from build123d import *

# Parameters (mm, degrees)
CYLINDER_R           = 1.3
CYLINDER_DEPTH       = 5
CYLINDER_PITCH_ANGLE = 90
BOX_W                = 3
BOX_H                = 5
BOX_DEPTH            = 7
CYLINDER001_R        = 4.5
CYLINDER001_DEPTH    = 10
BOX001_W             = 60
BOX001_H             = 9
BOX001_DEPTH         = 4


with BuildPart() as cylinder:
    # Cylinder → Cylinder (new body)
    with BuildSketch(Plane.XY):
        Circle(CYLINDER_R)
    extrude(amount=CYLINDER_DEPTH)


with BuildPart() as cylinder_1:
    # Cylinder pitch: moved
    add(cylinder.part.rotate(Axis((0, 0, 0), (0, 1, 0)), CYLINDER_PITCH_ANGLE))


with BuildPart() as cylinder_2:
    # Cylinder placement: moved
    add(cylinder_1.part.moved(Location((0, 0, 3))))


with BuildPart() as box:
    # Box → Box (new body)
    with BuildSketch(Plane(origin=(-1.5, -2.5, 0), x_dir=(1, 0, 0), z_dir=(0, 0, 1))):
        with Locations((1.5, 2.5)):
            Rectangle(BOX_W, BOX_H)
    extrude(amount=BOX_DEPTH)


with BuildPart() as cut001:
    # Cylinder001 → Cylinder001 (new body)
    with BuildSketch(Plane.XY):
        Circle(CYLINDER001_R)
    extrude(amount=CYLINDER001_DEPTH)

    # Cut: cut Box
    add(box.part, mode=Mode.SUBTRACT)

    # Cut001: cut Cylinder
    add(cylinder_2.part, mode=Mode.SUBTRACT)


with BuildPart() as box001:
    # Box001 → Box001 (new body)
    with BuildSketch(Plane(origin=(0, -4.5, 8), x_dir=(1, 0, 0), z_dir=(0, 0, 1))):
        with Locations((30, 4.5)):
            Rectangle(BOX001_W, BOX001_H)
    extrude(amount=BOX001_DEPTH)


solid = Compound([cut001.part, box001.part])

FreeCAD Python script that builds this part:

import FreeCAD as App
import Part
import Sketcher


def add_polygon(sketch, points):
    """Adds a closed chain of lines whose ends are joined by coincident constraints."""
    first, n = sketch.GeometryCount, len(points)
    for a, b in zip(points, points[1:] + points[:1]):
        sketch.addGeometry(Part.LineSegment(App.Vector(*a, 0), App.Vector(*b, 0)), False)
    for i in range(n):
        sketch.addConstraint(Sketcher.Constraint("Coincident", first + i, 2, first + (i + 1) % n, 1))

doc = App.newDocument("Part")
params = doc.addObject("Spreadsheet::Sheet", "Params")
for row, (alias, value) in enumerate([
    ("sketch1_diameter", "2.6 mm"),
    ("pad1_length", "5 mm"),
    ("sketch2_width", "3 mm"),
    ("sketch2_height", "5 mm"),
    ("pad2_length", "7 mm"),
    ("sketch3_diameter", "9 mm"),
    ("pad3_length", "10 mm"),
    ("sketch4_width", "60 mm"),
    ("sketch4_height", "9 mm"),
    ("pad4_length", "4 mm"),
], start=1):
    params.set(f"A{row}", alias)
    params.set(f"B{row}", "=" + value)
    params.setAlias(f"B{row}", alias)

body = doc.addObject("PartDesign::Body", "Body")

sketch1 = doc.addObject("Sketcher::SketchObject", "Sketch")
body.addObject(sketch1)
sketch1.AttachmentSupport = (doc.XY_Plane, [""])
sketch1.MapMode = "FlatFace"
sketch1.addGeometry(Part.Circle(App.Vector(0, 0, 0), App.Vector(0, 0, 1), 1.3), False)
sketch1.addConstraint([
    Sketcher.Constraint("Coincident", 0, 3, -1, 1),
    Sketcher.Constraint("Diameter", 0, 2.6),
])
sketch1.setExpression("Constraints[1]", "Params.sketch1_diameter")
pad1 = doc.addObject("PartDesign::Pad", "Pad")
body.addObject(pad1)
pad1.Profile = sketch1
pad1.setExpression("Length", "Params.pad1_length")
body2 = doc.addObject("PartDesign::Body", "Body001")
doc.recompute()

body.Placement = App.Placement(App.Vector(0, 0, 0), App.Rotation(App.Vector(0, 1, 0), 90))
boolean = doc.addObject("PartDesign::Boolean", "Boolean")
body2.addObject(boolean)
boolean.Type = "Fuse"
boolean.addObjects([body])
body3 = doc.addObject("PartDesign::Body", "Body002")
doc.recompute()

body2.Placement = App.Placement(App.Vector(0, 0, 3), App.Rotation(App.Vector(0, 0, 1), 0))
boolean2 = doc.addObject("PartDesign::Boolean", "Boolean001")
body3.addObject(boolean2)
boolean2.Type = "Fuse"
boolean2.addObjects([body2])
body4 = doc.addObject("PartDesign::Body", "Body003")

sketch2 = doc.addObject("Sketcher::SketchObject", "Sketch001")
body4.addObject(sketch2)
sketch2.AttachmentSupport = (doc.getObject("XY_Plane003"), [""])
sketch2.MapMode = "FlatFace"
add_polygon(sketch2, [(-1.5, 2.5), (-1.5, -2.5), (1.5, -2.5), (1.5, 2.5)])
sketch2.addConstraint([
    Sketcher.Constraint("Vertical", 0),
    Sketcher.Constraint("Horizontal", 1),
    Sketcher.Constraint("Vertical", 2),
    Sketcher.Constraint("Horizontal", 3),
    Sketcher.Constraint("Symmetric", 0, 2, 2, 2, -1, 1),
    Sketcher.Constraint("DistanceX", 1, 1, 1, 2, 3.0),
    Sketcher.Constraint("DistanceY", 0, 2, 0, 1, 5.0),
])
sketch2.setExpression("Constraints[9]", "Params.sketch2_width")
sketch2.setExpression("Constraints[10]", "Params.sketch2_height")
pad2 = doc.addObject("PartDesign::Pad", "Pad001")
body4.addObject(pad2)
pad2.Profile = sketch2
pad2.setExpression("Length", "Params.pad2_length")
body5 = doc.addObject("PartDesign::Body", "Body004")

sketch3 = doc.addObject("Sketcher::SketchObject", "Sketch002")
body5.addObject(sketch3)
sketch3.AttachmentSupport = (doc.getObject("XY_Plane004"), [""])
sketch3.MapMode = "FlatFace"
sketch3.addGeometry(Part.Circle(App.Vector(0, 0, 0), App.Vector(0, 0, 1), 4.5), False)
sketch3.addConstraint([
    Sketcher.Constraint("Coincident", 0, 3, -1, 1),
    Sketcher.Constraint("Diameter", 0, 9.0),
])
sketch3.setExpression("Constraints[1]", "Params.sketch3_diameter")
pad3 = doc.addObject("PartDesign::Pad", "Pad002")
body5.addObject(pad3)
pad3.Profile = sketch3
pad3.setExpression("Length", "Params.pad3_length")
doc.recompute()

boolean3 = doc.addObject("PartDesign::Boolean", "Boolean002")
body5.addObject(boolean3)
boolean3.Type = "Cut"
boolean3.addObjects([body4])
doc.recompute()

boolean4 = doc.addObject("PartDesign::Boolean", "Boolean003")
body5.addObject(boolean4)
boolean4.Type = "Cut"
boolean4.addObjects([body3])
body6 = doc.addObject("PartDesign::Body", "Body005")

sketch4 = doc.addObject("Sketcher::SketchObject", "Sketch003")
body6.addObject(sketch4)
sketch4.AttachmentSupport = (doc.getObject("XY_Plane005"), [""])
sketch4.MapMode = "FlatFace"
sketch4.AttachmentOffset = App.Placement(App.Vector(0, 0, 8), App.Rotation())
add_polygon(sketch4, [(0, 4.5), (0, -4.5), (60, -4.5), (60, 4.5)])
sketch4.addConstraint([
    Sketcher.Constraint("Vertical", 0),
    Sketcher.Constraint("Horizontal", 1),
    Sketcher.Constraint("Vertical", 2),
    Sketcher.Constraint("Horizontal", 3),
    Sketcher.Constraint("Symmetric", 0, 2, 3, 2, -1, 1),
    Sketcher.Constraint("DistanceX", 1, 1, 1, 2, 60.0),
    Sketcher.Constraint("DistanceY", 0, 2, 0, 1, 9.0),
])
sketch4.setExpression("Constraints[9]", "Params.sketch4_width")
sketch4.setExpression("Constraints[10]", "Params.sketch4_height")
pad4 = doc.addObject("PartDesign::Pad", "Pad003")
body6.addObject(pad4)
pad4.Profile = sketch4
pad4.setExpression("Length", "Params.pad4_length")

doc.recompute()
